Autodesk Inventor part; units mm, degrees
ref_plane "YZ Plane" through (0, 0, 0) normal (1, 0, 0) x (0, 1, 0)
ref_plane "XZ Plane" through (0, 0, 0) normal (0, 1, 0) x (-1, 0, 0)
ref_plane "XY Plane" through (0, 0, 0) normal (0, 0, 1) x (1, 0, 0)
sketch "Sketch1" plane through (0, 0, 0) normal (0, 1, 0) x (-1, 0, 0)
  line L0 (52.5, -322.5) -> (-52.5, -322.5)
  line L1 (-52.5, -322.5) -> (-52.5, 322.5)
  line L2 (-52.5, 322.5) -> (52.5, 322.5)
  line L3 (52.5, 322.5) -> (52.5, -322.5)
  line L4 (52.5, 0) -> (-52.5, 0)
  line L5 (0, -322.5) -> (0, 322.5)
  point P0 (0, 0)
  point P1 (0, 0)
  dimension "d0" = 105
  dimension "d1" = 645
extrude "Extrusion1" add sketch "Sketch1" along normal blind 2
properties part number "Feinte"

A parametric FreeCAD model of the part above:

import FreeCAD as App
import Part
import Sketcher

doc = App.newDocument("Part")
body = doc.addObject("PartDesign::Body", "Body")

# Sketch on XZ plane
sketch1 = body.newObject("Sketcher::SketchObject", "Sketch")
sketch1.AttachmentSupport = (doc.getObject("XZ_Plane"), [""])
sketch1.MapMode = "FlatFace"
sketch1.addGeometry([
    Part.LineSegment(App.Vector(-52.5, -322.5, 0), App.Vector(-52.5, 322.5, 0)),
    Part.LineSegment(App.Vector(-52.5, 322.5, 0), App.Vector(52.5, 322.5, 0)),
    Part.LineSegment(App.Vector(52.5, 322.5, 0), App.Vector(52.5, -322.5, 0)),
    Part.LineSegment(App.Vector(52.5, -322.5, 0), App.Vector(-52.5, -322.5, 0)),
], False)
sketch1.addConstraint([
    Sketcher.Constraint("Coincident", 0, 2, 1, 1),
    Sketcher.Constraint("Coincident", 1, 2, 2, 1),
    Sketcher.Constraint("Coincident", 2, 2, 3, 1),
    Sketcher.Constraint("Coincident", 3, 2, 0, 1),
    Sketcher.Constraint("Vertical", 0),
    Sketcher.Constraint("Horizontal", 1),
    Sketcher.Constraint("Vertical", 2),
    Sketcher.Constraint("Horizontal", 3),
    Sketcher.Constraint("Symmetric", 0, 2, 2, 2, -1, 1),
    Sketcher.Constraint("DistanceX", 1, 1, 1, 2, 105.0),
    Sketcher.Constraint("DistanceY", 0, 1, 0, 2, 645.0),
])
pad1 = body.newObject("PartDesign::Pad", "Pad")
pad1.Profile = sketch1
pad1.Length = 2
pad1.Reversed = True

doc.recompute()
